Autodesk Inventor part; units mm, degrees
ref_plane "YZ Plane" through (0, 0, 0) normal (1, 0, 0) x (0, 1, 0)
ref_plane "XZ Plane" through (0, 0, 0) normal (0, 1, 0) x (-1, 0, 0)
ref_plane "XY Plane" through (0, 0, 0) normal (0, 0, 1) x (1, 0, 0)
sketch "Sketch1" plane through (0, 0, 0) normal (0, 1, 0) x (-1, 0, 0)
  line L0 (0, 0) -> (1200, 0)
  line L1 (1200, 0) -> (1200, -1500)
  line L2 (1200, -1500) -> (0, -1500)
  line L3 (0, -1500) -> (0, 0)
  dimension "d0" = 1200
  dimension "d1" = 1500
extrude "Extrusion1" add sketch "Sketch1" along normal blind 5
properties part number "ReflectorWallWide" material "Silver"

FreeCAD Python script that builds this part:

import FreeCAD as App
import Part
import Sketcher
from FreeCAD import Vector
Q = App.Units.Quantity


def add_polygon(sketch, points):
    """Adds a closed chain of lines whose ends are joined by coincident constraints."""
    first, n = sketch.GeometryCount, len(points)
    for a, b in zip(points, points[1:] + points[:1]):
        sketch.addGeometry(Part.LineSegment(App.Vector(*a, 0), App.Vector(*b, 0)), False)
    for i in range(n):
        sketch.addConstraint(Sketcher.Constraint("Coincident", first + i, 2, first + (i + 1) % n, 1))

doc = App.newDocument("Part")
body = doc.addObject("PartDesign::Body", "Body")

sketch1 = body.newObject("Sketcher::SketchObject", "Sketch")
sketch1.AttachmentSupport = (doc.getObject("XZ_Plane"), [""])
sketch1.MapMode = "FlatFace"
add_polygon(sketch1, [(-1200, 0), (0, 0), (0, -1500), (-1200, -1500)])
sketch1.addConstraint(Sketcher.Constraint("Horizontal", 0))
sketch1.addConstraint(Sketcher.Constraint("Vertical", 1))
sketch1.addConstraint(Sketcher.Constraint("Horizontal", 2))
sketch1.addConstraint(Sketcher.Constraint("Vertical", 3))
sketch1.addConstraint(Sketcher.Constraint("Coincident", 0, 2, -1, 1))
sketch1.addConstraint(Sketcher.Constraint("DistanceX", 0, 1, 0, 2, Q("1200 mm")))
sketch1.addConstraint(Sketcher.Constraint("DistanceY", 1, 2, 1, 1, Q("1500 mm")))
pad1 = body.newObject("PartDesign::Pad", "Pad")
pad1.Profile = sketch1
pad1.Length = 5
pad1.Reversed = True

doc.recompute()
